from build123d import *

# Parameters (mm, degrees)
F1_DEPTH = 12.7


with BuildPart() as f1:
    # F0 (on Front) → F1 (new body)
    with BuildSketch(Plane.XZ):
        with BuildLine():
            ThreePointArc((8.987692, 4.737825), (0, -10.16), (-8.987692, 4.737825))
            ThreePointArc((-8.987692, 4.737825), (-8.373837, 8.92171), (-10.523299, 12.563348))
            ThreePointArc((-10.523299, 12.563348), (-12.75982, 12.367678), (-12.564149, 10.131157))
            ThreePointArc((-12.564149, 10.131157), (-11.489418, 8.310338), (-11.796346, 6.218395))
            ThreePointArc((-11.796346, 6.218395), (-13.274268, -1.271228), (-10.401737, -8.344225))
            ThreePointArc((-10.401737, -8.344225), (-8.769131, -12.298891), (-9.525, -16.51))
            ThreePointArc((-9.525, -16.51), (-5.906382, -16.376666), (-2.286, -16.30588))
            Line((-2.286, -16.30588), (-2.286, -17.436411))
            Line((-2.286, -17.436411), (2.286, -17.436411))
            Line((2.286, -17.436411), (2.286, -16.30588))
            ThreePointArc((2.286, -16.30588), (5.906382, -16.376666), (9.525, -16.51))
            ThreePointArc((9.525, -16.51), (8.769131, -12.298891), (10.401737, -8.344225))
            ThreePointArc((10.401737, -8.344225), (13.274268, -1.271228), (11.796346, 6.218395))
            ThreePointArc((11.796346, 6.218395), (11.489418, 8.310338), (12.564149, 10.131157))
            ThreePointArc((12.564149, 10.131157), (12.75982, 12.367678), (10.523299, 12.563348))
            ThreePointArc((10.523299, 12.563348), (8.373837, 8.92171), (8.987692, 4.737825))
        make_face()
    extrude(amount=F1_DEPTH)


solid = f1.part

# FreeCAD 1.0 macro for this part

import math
import FreeCAD as App
import Part
import Sketcher
Q = App.Units.Quantity

doc = App.newDocument("Part")
body = doc.addObject("PartDesign::Body", "Body")

sketch1 = body.newObject("Sketcher::SketchObject", "Sketch")
sketch1.AttachmentSupport = (doc.getObject("XZ_Plane"), [""])
sketch1.MapMode = "FlatFace"
sketch1.addGeometry(Part.ArcOfCircle(Part.Circle(App.Vector(0, 0, 0), App.Vector(0, 0, 1), 10.16), math.radians(152.204226), math.radians(387.795774)), False)
sketch1.addGeometry(Part.ArcOfCircle(Part.Circle(App.Vector(-14.605002, 7.698965, 0), App.Vector(0, 0, 1), 6.350001), math.radians(-27.795759), math.radians(49.999995)), False)
sketch1.addGeometry(Part.ArcOfCircle(Part.Circle(App.Vector(-11.543725, 11.347253, 0), App.Vector(0, 0, 1), 1.5875), math.radians(49.999982), math.radians(230.000033)), False)
sketch1.addGeometry(Part.ArcOfCircle(Part.Circle(App.Vector(-14.605, 7.698966, 0), App.Vector(0, 0, 1), 3.175), math.radians(-27.795779), math.radians(49.999998)), False)
sketch1.addGeometry(Part.ArcOfCircle(Part.Circle(App.Vector(0.000002, 0, 0), App.Vector(0, 0, 1), 13.335001), math.radians(152.204232), math.radians(218.736418)), False)
sketch1.addGeometry(Part.ArcOfCircle(Part.Circle(App.Vector(-16.345586, -13.112354, 0), App.Vector(0, 0, 1), 7.62), math.radians(-26.479996), math.radians(38.736427)), False)
sketch1.addGeometry(Part.ArcOfCircle(Part.Circle(App.Vector(0.000021, -225.843898, 0), App.Vector(0, 0, 1), 209.550488), math.radians(90.625062), math.radians(92.605251)), False)
sketch1.addGeometry(Part.LineSegment(App.Vector(-2.286, -16.30588, 0), App.Vector(-2.286, -17.436411, 0)), False)
sketch1.addGeometry(Part.LineSegment(App.Vector(-2.286, -17.436411, 0), App.Vector(2.286, -17.436411, 0)), False)
sketch1.addGeometry(Part.LineSegment(App.Vector(2.286, -17.436411, 0), App.Vector(2.286, -16.30588, 0)), False)
sketch1.addGeometry(Part.ArcOfCircle(Part.Circle(App.Vector(-0.000021, -225.843898, 0), App.Vector(0, 0, 1), 209.550488), math.radians(87.394749), math.radians(89.374938)), False)
sketch1.addGeometry(Part.ArcOfCircle(Part.Circle(App.Vector(16.345586, -13.112354, 0), App.Vector(0, 0, 1), 7.62), math.radians(141.263573), math.radians(206.479996)), False)
sketch1.addGeometry(Part.ArcOfCircle(Part.Circle(App.Vector(-0.000002, 0, 0), App.Vector(0, 0, 1), 13.335001), math.radians(-38.736418), math.radians(27.795768)), False)
sketch1.addGeometry(Part.ArcOfCircle(Part.Circle(App.Vector(14.605, 7.698966, 0), App.Vector(0, 0, 1), 3.175), math.radians(130.000002), math.radians(207.795779)), False)
sketch1.addGeometry(Part.ArcOfCircle(Part.Circle(App.Vector(11.543725, 11.347253, 0), App.Vector(0, 0, 1), 1.5875), math.radians(-50.000033), math.radians(130.000018)), False)
sketch1.addGeometry(Part.ArcOfCircle(Part.Circle(App.Vector(14.605002, 7.698965, 0), App.Vector(0, 0, 1), 6.350001), math.radians(130.000005), math.radians(207.795759)), False)
sketch1.addConstraint(Sketcher.Constraint("Tangent", 0, 1, 1, 1))
sketch1.addConstraint(Sketcher.Constraint("Tangent", 1, 2, 2, 1))
sketch1.addConstraint(Sketcher.Constraint("Tangent", 2, 2, 3, 2))
sketch1.addConstraint(Sketcher.Constraint("Tangent", 3, 1, 4, 1))
sketch1.addConstraint(Sketcher.Constraint("Tangent", 4, 2, 5, 2))
sketch1.addConstraint(Sketcher.Constraint("Coincident", 5, 1, 6, 2))
sketch1.addConstraint(Sketcher.Constraint("Coincident", 6, 1, 7, 1))
sketch1.addConstraint(Sketcher.Constraint("Coincident", 7, 2, 8, 1))
sketch1.addConstraint(Sketcher.Constraint("Coincident", 8, 2, 9, 1))
sketch1.addConstraint(Sketcher.Constraint("Coincident", 9, 2, 10, 2))
sketch1.addConstraint(Sketcher.Constraint("Coincident", 10, 1, 11, 2))
sketch1.addConstraint(Sketcher.Constraint("Tangent", 11, 1, 12, 1))
sketch1.addConstraint(Sketcher.Constraint("Tangent", 12, 2, 13, 2))
sketch1.addConstraint(Sketcher.Constraint("Tangent", 13, 1, 14, 1))
sketch1.addConstraint(Sketcher.Constraint("Tangent", 14, 2, 15, 1))
sketch1.addConstraint(Sketcher.Constraint("Tangent", 15, 2, 0, 2))
sketch1.addConstraint(Sketcher.Constraint("Vertical", 7))
sketch1.addConstraint(Sketcher.Constraint("Horizontal", 8))
sketch1.addConstraint(Sketcher.Constraint("Vertical", 9))
sketch1.addConstraint(Sketcher.Constraint("Coincident", 0, 3, -1, 1))
sketch1.addConstraint(Sketcher.Constraint("Coincident", 4, 3, -1, 1))
sketch1.addConstraint(Sketcher.Constraint("Coincident", 12, 3, -1, 1))
sketch1.addConstraint(Sketcher.Constraint("Coincident", 3, 3, 1, 3))
sketch1.addConstraint(Sketcher.Constraint("Coincident", 15, 3, 13, 3))
sketch1.addConstraint(Sketcher.Constraint("Equal", 6, 10))
sketch1.addConstraint(Sketcher.Constraint("Equal", 5, 11))
sketch1.addConstraint(Sketcher.Constraint("Equal", 4, 12))
sketch1.addConstraint(Sketcher.Constraint("Equal", 3, 13))
sketch1.addConstraint(Sketcher.Constraint("Symmetric", 6, 3, 10, 3, -2))
sketch1.addConstraint(Sketcher.Constraint("Symmetric", 2, 3, 14, 3, -2))
sketch1.addConstraint(Sketcher.Constraint("Horizontal", 5, 3, 11, 3))
sketch1.addConstraint(Sketcher.Constraint("Horizontal", 6, 1, 9, 2))
sketch1.addConstraint(Sketcher.Constraint("Radius", 0, Q("0.4 in")))
sketch1.addConstraint(Sketcher.Constraint("Radius", 5, Q("0.3 in")))
sketch1.addConstraint(Sketcher.Constraint("Radius", 1, Q("0.2500001 in")))
sketch1.addConstraint(Sketcher.Constraint("Radius", 2, Q("0.0625 in")))
sketch1.addConstraint(Sketcher.Constraint("DistanceX", 8, 1, 8, 2, Q("0.18 in")))
sketch1.addConstraint(Sketcher.Constraint("DistanceY", 5, 1, -1, 1, Q("0.65 in")))
sketch1.addConstraint(Sketcher.Constraint("DistanceX", 1, 3, -1, 1, Q("0.5750001 in")))
sketch1.addConstraint(Sketcher.Constraint("DistanceX", 5, 1, -1, 1, Q("0.375 in")))
sketch1.addConstraint(Sketcher.Constraint("Radius", 6, 209.550488))
sketch1.addConstraint(Sketcher.Constraint("DistanceY", 7, 2, 7, 1, 1.130531))
sketch1.addConstraint(Sketcher.Constraint("DistanceY", 6, 3, -1, 1, 225.843898))
sketch1.addConstraint(Sketcher.Constraint("DistanceX", 1, 2, -1, 1, 10.523299))
pad1 = body.newObject("PartDesign::Pad", "Pad")
pad1.Profile = sketch1
pad1.Length = Q("0.5 in")

doc.recompute()
